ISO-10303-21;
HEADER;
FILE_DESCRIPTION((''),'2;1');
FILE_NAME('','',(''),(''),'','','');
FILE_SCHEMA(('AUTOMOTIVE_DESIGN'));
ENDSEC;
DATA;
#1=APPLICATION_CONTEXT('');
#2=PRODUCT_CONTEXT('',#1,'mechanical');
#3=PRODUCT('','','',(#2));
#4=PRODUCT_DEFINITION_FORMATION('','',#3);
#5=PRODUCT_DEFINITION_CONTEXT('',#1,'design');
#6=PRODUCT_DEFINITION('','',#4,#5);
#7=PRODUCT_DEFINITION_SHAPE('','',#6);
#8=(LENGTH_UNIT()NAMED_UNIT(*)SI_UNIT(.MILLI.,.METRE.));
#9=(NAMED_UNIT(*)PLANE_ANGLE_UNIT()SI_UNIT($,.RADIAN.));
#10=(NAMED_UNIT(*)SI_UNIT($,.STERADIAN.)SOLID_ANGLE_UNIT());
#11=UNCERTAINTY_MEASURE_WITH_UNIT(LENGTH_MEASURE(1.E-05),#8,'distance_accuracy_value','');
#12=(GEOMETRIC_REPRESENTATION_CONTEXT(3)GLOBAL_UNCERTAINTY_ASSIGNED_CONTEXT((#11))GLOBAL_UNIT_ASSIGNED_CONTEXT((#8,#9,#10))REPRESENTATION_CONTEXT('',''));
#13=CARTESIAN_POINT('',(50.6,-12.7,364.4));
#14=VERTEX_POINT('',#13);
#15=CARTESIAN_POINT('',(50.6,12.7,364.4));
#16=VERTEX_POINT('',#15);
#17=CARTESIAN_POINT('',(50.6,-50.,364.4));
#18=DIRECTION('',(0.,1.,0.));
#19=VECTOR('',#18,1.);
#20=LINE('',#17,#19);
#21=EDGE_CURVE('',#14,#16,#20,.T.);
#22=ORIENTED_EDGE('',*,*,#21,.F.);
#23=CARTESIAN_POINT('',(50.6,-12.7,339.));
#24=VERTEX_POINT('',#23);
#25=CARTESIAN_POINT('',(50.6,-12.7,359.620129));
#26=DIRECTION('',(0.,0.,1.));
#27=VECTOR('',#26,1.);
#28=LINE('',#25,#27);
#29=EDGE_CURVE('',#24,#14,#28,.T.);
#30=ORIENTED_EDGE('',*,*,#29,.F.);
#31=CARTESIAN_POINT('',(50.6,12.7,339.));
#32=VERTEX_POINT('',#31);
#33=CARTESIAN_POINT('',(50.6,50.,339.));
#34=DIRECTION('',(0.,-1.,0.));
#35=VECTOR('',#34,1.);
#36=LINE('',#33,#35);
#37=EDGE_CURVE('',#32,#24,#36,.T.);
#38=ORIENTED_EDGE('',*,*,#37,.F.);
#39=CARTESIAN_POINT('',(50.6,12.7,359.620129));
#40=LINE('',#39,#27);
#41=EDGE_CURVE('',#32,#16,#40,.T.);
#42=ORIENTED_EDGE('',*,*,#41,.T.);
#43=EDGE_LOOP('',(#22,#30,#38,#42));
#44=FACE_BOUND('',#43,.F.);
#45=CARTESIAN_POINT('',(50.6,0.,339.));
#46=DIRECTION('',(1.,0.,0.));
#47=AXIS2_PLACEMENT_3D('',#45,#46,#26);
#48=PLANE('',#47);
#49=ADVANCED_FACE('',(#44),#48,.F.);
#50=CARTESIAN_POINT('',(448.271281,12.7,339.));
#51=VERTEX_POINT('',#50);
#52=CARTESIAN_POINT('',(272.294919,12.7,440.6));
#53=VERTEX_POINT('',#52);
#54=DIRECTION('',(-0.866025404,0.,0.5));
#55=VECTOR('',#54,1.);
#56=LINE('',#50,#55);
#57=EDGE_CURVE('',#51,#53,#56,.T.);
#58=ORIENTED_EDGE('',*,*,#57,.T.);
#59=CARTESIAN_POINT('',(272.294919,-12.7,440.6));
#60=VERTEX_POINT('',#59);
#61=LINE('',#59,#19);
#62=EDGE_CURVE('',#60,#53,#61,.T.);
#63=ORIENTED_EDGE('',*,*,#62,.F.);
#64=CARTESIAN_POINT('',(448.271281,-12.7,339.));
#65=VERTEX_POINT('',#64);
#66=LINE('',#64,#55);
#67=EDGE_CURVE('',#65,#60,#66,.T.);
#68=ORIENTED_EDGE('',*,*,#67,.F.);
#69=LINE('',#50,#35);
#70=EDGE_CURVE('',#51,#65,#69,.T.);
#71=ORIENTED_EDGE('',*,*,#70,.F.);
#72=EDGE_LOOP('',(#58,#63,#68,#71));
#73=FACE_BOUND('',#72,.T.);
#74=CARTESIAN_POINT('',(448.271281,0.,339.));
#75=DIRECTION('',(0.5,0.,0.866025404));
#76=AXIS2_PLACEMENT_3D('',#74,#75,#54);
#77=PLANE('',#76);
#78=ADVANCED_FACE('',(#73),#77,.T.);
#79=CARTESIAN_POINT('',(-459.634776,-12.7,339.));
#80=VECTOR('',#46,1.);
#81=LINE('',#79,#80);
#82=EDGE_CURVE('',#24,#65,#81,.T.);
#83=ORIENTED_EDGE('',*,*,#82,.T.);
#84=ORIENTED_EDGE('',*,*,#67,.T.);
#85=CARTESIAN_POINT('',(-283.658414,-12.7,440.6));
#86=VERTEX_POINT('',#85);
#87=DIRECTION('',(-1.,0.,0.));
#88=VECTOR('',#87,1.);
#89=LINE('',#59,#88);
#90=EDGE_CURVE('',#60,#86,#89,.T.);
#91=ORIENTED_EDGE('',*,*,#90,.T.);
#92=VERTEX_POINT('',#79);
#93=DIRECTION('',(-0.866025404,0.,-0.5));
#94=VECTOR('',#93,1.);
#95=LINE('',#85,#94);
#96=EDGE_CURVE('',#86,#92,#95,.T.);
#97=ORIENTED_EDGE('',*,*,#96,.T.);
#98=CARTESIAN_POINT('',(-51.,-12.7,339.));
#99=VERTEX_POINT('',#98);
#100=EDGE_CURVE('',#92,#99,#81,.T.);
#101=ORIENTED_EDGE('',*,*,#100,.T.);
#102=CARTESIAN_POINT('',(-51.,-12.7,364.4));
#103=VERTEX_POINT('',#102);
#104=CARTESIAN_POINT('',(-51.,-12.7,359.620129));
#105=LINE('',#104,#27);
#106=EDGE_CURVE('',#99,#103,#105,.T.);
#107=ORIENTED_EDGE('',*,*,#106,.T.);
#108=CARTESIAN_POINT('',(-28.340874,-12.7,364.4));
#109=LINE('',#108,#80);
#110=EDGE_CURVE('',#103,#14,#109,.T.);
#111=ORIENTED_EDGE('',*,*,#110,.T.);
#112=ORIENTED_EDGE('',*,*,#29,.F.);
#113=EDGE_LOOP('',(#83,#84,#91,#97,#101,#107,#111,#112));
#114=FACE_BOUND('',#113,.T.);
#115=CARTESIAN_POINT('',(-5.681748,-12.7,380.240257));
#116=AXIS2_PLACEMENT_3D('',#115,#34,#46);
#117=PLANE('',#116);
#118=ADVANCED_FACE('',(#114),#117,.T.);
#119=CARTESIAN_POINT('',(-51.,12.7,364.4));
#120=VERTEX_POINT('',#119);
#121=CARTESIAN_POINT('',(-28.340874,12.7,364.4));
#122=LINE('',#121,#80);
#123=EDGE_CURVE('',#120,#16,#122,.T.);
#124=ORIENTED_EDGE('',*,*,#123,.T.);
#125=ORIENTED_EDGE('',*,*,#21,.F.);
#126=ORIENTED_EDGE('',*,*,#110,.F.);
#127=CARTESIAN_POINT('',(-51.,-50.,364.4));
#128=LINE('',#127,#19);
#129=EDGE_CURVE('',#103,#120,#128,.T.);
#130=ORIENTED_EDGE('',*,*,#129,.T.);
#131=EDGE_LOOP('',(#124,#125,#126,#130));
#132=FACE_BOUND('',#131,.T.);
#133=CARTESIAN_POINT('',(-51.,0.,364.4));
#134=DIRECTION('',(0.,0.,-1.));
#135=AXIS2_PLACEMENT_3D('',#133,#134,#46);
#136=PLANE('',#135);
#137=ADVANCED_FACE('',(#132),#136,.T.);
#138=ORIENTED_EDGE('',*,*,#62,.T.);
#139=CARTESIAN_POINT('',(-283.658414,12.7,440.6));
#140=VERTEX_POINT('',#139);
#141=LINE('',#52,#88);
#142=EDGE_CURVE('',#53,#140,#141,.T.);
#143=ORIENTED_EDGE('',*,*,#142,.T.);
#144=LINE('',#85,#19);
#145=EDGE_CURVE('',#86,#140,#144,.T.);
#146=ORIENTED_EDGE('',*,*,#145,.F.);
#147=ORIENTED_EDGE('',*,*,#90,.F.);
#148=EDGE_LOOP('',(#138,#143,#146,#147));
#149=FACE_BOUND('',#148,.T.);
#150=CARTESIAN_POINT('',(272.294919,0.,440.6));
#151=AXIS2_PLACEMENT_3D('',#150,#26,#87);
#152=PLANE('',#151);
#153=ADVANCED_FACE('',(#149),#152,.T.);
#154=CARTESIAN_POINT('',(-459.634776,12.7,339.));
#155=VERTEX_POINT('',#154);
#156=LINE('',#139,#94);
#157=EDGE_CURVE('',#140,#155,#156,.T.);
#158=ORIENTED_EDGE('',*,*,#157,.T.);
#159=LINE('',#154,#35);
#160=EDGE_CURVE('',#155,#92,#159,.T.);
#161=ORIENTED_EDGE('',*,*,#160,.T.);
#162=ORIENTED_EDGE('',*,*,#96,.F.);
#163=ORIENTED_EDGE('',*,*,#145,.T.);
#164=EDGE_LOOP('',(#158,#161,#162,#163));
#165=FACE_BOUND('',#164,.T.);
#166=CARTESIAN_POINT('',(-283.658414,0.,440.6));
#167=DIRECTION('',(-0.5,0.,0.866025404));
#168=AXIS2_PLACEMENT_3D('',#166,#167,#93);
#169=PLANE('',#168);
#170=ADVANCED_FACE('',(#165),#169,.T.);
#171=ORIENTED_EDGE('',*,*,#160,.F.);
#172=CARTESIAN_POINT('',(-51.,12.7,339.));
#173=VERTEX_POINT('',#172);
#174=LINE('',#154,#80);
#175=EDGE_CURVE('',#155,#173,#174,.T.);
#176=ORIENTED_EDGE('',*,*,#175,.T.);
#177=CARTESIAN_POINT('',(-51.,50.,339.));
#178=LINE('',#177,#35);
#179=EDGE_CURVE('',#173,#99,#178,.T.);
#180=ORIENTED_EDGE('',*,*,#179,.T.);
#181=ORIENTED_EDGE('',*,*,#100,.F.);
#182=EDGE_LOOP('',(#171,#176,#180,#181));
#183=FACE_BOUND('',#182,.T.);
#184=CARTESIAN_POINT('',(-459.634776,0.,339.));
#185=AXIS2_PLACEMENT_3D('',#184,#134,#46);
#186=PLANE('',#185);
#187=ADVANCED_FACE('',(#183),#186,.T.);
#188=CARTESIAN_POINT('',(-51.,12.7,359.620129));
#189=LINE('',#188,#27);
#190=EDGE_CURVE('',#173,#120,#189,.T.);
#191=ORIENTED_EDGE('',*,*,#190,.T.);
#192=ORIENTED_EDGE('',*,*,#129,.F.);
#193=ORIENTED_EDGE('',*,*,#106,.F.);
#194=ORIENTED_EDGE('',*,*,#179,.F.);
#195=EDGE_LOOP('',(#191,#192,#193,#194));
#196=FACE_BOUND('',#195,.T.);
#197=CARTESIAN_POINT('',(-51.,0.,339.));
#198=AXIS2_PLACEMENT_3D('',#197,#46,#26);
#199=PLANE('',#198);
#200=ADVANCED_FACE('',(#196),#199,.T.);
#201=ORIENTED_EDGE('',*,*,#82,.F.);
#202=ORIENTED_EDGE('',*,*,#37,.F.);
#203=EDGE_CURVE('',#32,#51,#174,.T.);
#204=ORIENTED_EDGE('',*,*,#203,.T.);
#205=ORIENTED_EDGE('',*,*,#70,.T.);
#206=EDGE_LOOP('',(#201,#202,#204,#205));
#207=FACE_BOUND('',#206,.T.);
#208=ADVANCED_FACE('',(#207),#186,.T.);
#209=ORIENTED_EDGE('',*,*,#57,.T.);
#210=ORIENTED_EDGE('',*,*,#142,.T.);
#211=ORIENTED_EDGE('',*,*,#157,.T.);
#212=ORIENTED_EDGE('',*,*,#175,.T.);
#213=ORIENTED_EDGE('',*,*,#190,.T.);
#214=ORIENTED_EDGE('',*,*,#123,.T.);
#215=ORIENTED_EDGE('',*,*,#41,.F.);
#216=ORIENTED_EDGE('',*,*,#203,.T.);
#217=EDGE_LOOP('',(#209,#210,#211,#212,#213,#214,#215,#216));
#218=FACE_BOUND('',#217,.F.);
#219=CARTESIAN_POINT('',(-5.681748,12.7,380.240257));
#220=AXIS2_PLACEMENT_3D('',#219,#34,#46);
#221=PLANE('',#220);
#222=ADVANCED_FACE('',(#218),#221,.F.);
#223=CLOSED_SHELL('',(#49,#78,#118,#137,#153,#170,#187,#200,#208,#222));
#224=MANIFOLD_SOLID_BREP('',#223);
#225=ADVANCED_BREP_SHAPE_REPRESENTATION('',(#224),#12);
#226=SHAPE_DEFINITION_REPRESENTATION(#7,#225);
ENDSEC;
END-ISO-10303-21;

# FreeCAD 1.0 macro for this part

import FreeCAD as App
import Part
import Sketcher
from FreeCAD import Vector
Q = App.Units.Quantity

doc = App.newDocument("Part")
body = doc.addObject("PartDesign::Body", "Body")

# Sketch on XZ plane
sketch1 = body.newObject("Sketcher::SketchObject", "Sketch")
sketch1.AttachmentSupport = (doc.getObject("XZ_Plane"), [""])
sketch1.MapMode = "FlatFace"
sketch1.addGeometry(Part.LineSegment(Vector(-283.658414, 440.6, 0), Vector(-459.634776, 339, 0)), False)
sketch1.addGeometry(Part.LineSegment(Vector(-459.634776, 339, 0), Vector(448.271281, 339, 0)), False)
sketch1.addGeometry(Part.LineSegment(Vector(448.271281, 339, 0), Vector(272.294919, 440.6, 0)), False)
sketch1.addGeometry(Part.LineSegment(Vector(272.294919, 440.6, 0), Vector(-283.658414, 440.6, 0)), False)
sketch1.addConstraint(Sketcher.Constraint("Coincident", 0, 2, 1, 1))
sketch1.addConstraint(Sketcher.Constraint("Coincident", 1, 2, 2, 1))
sketch1.addConstraint(Sketcher.Constraint("Coincident", 2, 2, 3, 1))
sketch1.addConstraint(Sketcher.Constraint("Coincident", 3, 2, 0, 1))
sketch1.addConstraint(Sketcher.Constraint("Horizontal", 1))
sketch1.addConstraint(Sketcher.Constraint("Horizontal", 3))
sketch1.addConstraint(Sketcher.Constraint("Equal", 0, 2))
sketch1.addConstraint(Sketcher.Constraint("Distance", 0, Q("8 in")))
sketch1.addConstraint(Sketcher.Constraint("Angle", 0, Q("-150 deg")))
sketch1.addConstraint(Sketcher.Constraint("DistanceY", -1, 1, 0, 2, Q("339 mm")))
sketch1.addConstraint(Sketcher.Constraint("DistanceX", 1, 1, 1, 2, Q("907.906057 mm")))
sketch1.addConstraint(Sketcher.Constraint("DistanceX", -1, 1, 1, 2, Q("448.271281 mm")))
pad1 = body.newObject("PartDesign::Pad", "Pad")
pad1.Profile = sketch1
pad1.Length = Q("1 in")
pad1.Midplane = True

# Sketch on XZ plane
sketch2 = body.newObject("Sketcher::SketchObject", "Sketch001")
sketch2.AttachmentSupport = (doc.getObject("XZ_Plane"), [""])
sketch2.MapMode = "FlatFace"
sketch2.addGeometry(Part.LineSegment(Vector(-51, 364.4, 0), Vector(-51, 339, 0)), False)
sketch2.addGeometry(Part.LineSegment(Vector(-51, 339, 0), Vector(50.6, 339, 0)), False)
sketch2.addGeometry(Part.LineSegment(Vector(50.6, 339, 0), Vector(50.6, 364.4, 0)), False)
sketch2.addGeometry(Part.LineSegment(Vector(50.6, 364.4, 0), Vector(-51, 364.4, 0)), False)
sketch2.addConstraint(Sketcher.Constraint("Coincident", 0, 2, 1, 1))
sketch2.addConstraint(Sketcher.Constraint("Coincident", 1, 2, 2, 1))
sketch2.addConstraint(Sketcher.Constraint("Coincident", 2, 2, 3, 1))
sketch2.addConstraint(Sketcher.Constraint("Coincident", 3, 2, 0, 1))
sketch2.addConstraint(Sketcher.Constraint("Vertical", 0))
sketch2.addConstraint(Sketcher.Constraint("Horizontal", 1))
sketch2.addConstraint(Sketcher.Constraint("Vertical", 2))
sketch2.addConstraint(Sketcher.Constraint("Horizontal", 3))
sketch2.addConstraint(Sketcher.Constraint("DistanceX", 1, 1, 1, 2, Q("4 in")))
sketch2.addConstraint(Sketcher.Constraint("DistanceY", 0, 2, 0, 1, Q("1 in")))
sketch2.addConstraint(Sketcher.Constraint("DistanceX", 0, 2, -1, 1, Q("51 mm")))
sketch2.addConstraint(Sketcher.Constraint("DistanceY", -1, 1, 0, 2, Q("339 mm")))
pocket1 = body.newObject("PartDesign::Pocket", "Pocket")
pocket1.Profile = sketch2
pocket1.Length = 100
pocket1.Midplane = True

doc.recompute()
